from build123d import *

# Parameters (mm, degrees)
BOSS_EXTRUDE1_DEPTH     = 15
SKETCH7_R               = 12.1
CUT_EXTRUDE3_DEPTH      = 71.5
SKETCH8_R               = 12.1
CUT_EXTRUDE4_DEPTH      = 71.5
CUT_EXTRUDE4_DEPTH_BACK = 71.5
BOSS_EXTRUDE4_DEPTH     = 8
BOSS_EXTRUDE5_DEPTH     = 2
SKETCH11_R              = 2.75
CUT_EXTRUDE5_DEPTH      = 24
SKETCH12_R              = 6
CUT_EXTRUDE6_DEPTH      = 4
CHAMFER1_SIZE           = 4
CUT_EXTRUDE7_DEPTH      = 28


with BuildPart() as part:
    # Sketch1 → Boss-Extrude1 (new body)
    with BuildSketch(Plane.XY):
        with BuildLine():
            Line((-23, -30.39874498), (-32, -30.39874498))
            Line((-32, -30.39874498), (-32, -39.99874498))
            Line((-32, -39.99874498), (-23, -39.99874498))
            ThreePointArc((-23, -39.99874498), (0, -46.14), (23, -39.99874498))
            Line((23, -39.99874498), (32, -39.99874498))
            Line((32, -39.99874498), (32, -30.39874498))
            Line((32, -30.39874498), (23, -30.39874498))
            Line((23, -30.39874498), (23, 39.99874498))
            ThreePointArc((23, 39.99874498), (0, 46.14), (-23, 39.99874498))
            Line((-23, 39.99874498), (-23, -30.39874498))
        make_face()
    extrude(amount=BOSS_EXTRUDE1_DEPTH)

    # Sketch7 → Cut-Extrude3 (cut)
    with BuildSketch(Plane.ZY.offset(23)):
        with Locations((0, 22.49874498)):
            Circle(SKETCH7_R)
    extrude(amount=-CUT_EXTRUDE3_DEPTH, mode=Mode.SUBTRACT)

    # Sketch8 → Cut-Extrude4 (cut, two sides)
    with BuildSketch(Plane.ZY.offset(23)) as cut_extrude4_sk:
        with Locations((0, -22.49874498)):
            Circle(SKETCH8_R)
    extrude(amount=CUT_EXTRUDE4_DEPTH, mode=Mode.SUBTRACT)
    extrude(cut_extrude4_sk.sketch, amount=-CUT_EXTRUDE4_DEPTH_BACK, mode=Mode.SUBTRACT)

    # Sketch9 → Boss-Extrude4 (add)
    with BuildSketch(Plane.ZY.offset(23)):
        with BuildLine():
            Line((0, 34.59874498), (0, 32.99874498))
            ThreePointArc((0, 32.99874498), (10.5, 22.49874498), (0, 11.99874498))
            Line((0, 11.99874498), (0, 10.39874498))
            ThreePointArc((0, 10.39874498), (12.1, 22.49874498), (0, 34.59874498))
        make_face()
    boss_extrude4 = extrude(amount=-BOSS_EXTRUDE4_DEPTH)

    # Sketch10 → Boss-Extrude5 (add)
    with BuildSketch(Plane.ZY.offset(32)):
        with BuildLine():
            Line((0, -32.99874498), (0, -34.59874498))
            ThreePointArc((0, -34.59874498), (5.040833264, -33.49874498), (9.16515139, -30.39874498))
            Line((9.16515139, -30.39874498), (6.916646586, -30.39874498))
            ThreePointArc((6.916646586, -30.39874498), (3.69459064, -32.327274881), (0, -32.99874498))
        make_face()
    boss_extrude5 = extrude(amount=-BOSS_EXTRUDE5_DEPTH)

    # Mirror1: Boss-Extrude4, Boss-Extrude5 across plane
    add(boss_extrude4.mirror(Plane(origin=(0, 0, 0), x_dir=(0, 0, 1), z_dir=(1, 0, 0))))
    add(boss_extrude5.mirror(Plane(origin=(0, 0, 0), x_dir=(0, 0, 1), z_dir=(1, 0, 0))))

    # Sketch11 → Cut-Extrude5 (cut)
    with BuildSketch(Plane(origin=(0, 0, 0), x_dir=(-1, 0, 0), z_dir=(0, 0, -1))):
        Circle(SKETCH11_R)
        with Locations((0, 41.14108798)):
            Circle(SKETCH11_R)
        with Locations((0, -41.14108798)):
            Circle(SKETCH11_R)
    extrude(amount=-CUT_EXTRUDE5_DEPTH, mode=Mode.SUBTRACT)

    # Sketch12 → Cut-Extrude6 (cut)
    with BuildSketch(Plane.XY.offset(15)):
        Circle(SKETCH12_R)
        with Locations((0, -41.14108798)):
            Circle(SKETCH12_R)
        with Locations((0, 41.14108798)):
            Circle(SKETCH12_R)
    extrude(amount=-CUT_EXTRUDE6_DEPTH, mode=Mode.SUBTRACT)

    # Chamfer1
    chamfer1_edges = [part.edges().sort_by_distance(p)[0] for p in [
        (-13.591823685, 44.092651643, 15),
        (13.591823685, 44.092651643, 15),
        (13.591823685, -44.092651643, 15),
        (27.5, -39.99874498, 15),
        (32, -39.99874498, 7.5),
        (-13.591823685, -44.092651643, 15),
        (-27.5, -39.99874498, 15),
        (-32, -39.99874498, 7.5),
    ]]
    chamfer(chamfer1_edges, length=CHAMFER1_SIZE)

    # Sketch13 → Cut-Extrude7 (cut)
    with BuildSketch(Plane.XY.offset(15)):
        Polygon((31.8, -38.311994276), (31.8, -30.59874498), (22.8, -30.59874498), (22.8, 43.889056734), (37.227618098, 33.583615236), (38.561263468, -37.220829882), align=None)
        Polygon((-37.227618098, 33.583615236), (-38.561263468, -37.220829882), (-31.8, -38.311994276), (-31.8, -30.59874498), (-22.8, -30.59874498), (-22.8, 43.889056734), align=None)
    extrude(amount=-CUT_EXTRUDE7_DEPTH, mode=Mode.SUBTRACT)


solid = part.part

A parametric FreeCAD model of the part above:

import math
import FreeCAD as App
import Part
import Sketcher


def edges_at(feature, points):
    """Names of the edges that pass closest to the given points."""
    edges = feature.Shape.Edges
    near = lambda p: min(range(len(edges)), key=lambda i: edges[i].distToShape(Part.Vertex(*p))[0])
    return sorted({f"Edge{near(p) + 1}" for p in points})

doc = App.newDocument("Part")
body = doc.addObject("PartDesign::Body", "Body")

sketch1 = body.newObject("Sketcher::SketchObject", "Sketch")
sketch1.AttachmentSupport = (doc.getObject("XY_Plane"), [""])
sketch1.MapMode = "FlatFace"
sketch1.addGeometry([
    Part.LineSegment(App.Vector(-23, -30.398745, 0), App.Vector(-32, -30.398745, 0)),
    Part.LineSegment(App.Vector(-32, -30.398745, 0), App.Vector(-32, -39.998745, 0)),
    Part.LineSegment(App.Vector(-32, -39.998745, 0), App.Vector(-23, -39.998745, 0)),
    Part.ArcOfCircle(Part.Circle(App.Vector(0, 0, 0), App.Vector(0, 0, 1), 46.14), math.radians(-119.899679), math.radians(-60.100321)),
    Part.LineSegment(App.Vector(23, -39.998745, 0), App.Vector(32, -39.998745, 0)),
    Part.LineSegment(App.Vector(32, -39.998745, 0), App.Vector(32, -30.398745, 0)),
    Part.LineSegment(App.Vector(32, -30.398745, 0), App.Vector(23, -30.398745, 0)),
    Part.LineSegment(App.Vector(23, -30.398745, 0), App.Vector(23, 39.998745, 0)),
    Part.ArcOfCircle(Part.Circle(App.Vector(0, 0, 0), App.Vector(0, 0, 1), 46.14), math.radians(60.100321), math.radians(119.899679)),
    Part.LineSegment(App.Vector(-23, 39.998745, 0), App.Vector(-23, -30.398745, 0)),
], False)
sketch1.addConstraint([
    Sketcher.Constraint("Coincident", 0, 2, 1, 1),
    Sketcher.Constraint("Coincident", 1, 2, 2, 1),
    Sketcher.Constraint("Coincident", 2, 2, 3, 1),
    Sketcher.Constraint("Coincident", 3, 2, 4, 1),
    Sketcher.Constraint("Coincident", 4, 2, 5, 1),
    Sketcher.Constraint("Coincident", 5, 2, 6, 1),
    Sketcher.Constraint("Coincident", 6, 2, 7, 1),
    Sketcher.Constraint("Coincident", 7, 2, 8, 1),
    Sketcher.Constraint("Coincident", 8, 2, 9, 1),
    Sketcher.Constraint("Coincident", 9, 2, 0, 1),
    Sketcher.Constraint("Horizontal", 0),
    Sketcher.Constraint("Vertical", 1),
    Sketcher.Constraint("Horizontal", 2),
    Sketcher.Constraint("Horizontal", 4),
    Sketcher.Constraint("Vertical", 5),
    Sketcher.Constraint("Horizontal", 6),
    Sketcher.Constraint("Vertical", 7),
    Sketcher.Constraint("Vertical", 9),
    Sketcher.Constraint("Coincident", 3, 3, -1, 1),
    Sketcher.Constraint("Coincident", 8, 3, -1, 1),
    Sketcher.Constraint("Equal", 3, 8),
    Sketcher.Constraint("Symmetric", 1, 2, 4, 2, -2),
    Sketcher.Constraint("Symmetric", 6, 2, 9, 2, -2),
    Sketcher.Constraint("Vertical", 3, 2, 6, 2),
    Sketcher.Constraint("DistanceX", 0, 2, 0, 1, 9.0),
    Sketcher.Constraint("Radius", 3, 46.14),
    Sketcher.Constraint("DistanceY", 1, 2, 1, 1, 9.6),
    Sketcher.Constraint("DistanceX", 0, 2, -1, 1, 32.0),
])
pad1 = body.newObject("PartDesign::Pad", "Pad")
pad1.Profile = sketch1
pad1.Length = 15

sketch2 = body.newObject("Sketcher::SketchObject", "Sketch001")
sketch2.AttachmentSupport = (doc.getObject("YZ_Plane"), [""])
sketch2.MapMode = "FlatFace"
sketch2.AttachmentOffset = App.Placement(App.Vector(0, 0, -23), App.Rotation())
sketch2.addGeometry(Part.Circle(App.Vector(22.498745, 0, 0), App.Vector(0, 0, 1), 12.1), False)
sketch2.addConstraint([
    Sketcher.Constraint("PointOnObject", 0, 3, -1),
    Sketcher.Constraint("Diameter", 0, 24.2),
    Sketcher.Constraint("DistanceX", -1, 1, 0, 3, 22.498745),
])
pocket1 = body.newObject("PartDesign::Pocket", "Pocket")
pocket1.Profile = sketch2
pocket1.Length = 71.5
pocket1.Reversed = True

sketch3 = body.newObject("Sketcher::SketchObject", "Sketch002")
sketch3.AttachmentSupport = (doc.getObject("YZ_Plane"), [""])
sketch3.MapMode = "FlatFace"
sketch3.AttachmentOffset = App.Placement(App.Vector(0, 0, -23), App.Rotation())
sketch3.addGeometry(Part.Circle(App.Vector(-22.498745, 0, 0), App.Vector(0, 0, 1), 12.1), False)
sketch3.addConstraint([
    Sketcher.Constraint("PointOnObject", 0, 3, -1),
    Sketcher.Constraint("Diameter", 0, 24.2),
    Sketcher.Constraint("DistanceX", 0, 3, -1, 1, 22.498745),
])
pocket2 = body.newObject("PartDesign::Pocket", "Pocket001")
pocket2.Profile = sketch3
pocket2.Type = "ThroughAll"
pocket2.Midplane = True

sketch4 = body.newObject("Sketcher::SketchObject", "Sketch003")
sketch4.AttachmentSupport = (doc.getObject("YZ_Plane"), [""])
sketch4.MapMode = "FlatFace"
sketch4.AttachmentOffset = App.Placement(App.Vector(0, 0, -23), App.Rotation())
sketch4.addGeometry([
    Part.LineSegment(App.Vector(34.598745, 0, 0), App.Vector(32.998745, 0, 0)),
    Part.ArcOfCircle(Part.Circle(App.Vector(22.498745, 0, 0), App.Vector(0, 0, 1), 10.5), math.radians(0), math.radians(180)),
    Part.LineSegment(App.Vector(11.998745, 0, 0), App.Vector(10.398745, 0, 0)),
    Part.ArcOfCircle(Part.Circle(App.Vector(22.498745, 0, 0), App.Vector(0, 0, 1), 12.1), math.radians(0), math.radians(180)),
], False)
sketch4.addConstraint([
    Sketcher.Constraint("Coincident", 0, 2, 1, 1),
    Sketcher.Constraint("Coincident", 1, 2, 2, 1),
    Sketcher.Constraint("Coincident", 2, 2, 3, 2),
    Sketcher.Constraint("Coincident", 3, 1, 0, 1),
    Sketcher.Constraint("Horizontal", 0),
    Sketcher.Constraint("Horizontal", 2),
    Sketcher.Constraint("Coincident", 3, 3, 1, 3),
    Sketcher.Constraint("PointOnObject", 1, 3, -1),
    Sketcher.Constraint("PointOnObject", 0, 2, -1),
    Sketcher.Constraint("PointOnObject", 1, 2, -1),
    Sketcher.Constraint("Radius", 1, 10.5),
    Sketcher.Constraint("Radius", 3, 12.1),
    Sketcher.Constraint("DistanceX", -1, 1, 1, 3, 22.498745),
])
pad2 = body.newObject("PartDesign::Pad", "Pad001")
pad2.Profile = sketch4
pad2.Length = 8

sketch5 = body.newObject("Sketcher::SketchObject", "Sketch004")
sketch5.AttachmentSupport = (doc.getObject("YZ_Plane"), [""])
sketch5.MapMode = "FlatFace"
sketch5.AttachmentOffset = App.Placement(App.Vector(0, 0, -32), App.Rotation())
sketch5.addGeometry([
    Part.LineSegment(App.Vector(-32.998745, 0, 0), App.Vector(-34.598745, 0, 0)),
    Part.ArcOfCircle(Part.Circle(App.Vector(-22.498745, 0, 0), App.Vector(0, 0, 1), 12.1), math.radians(130.760045), math.radians(180)),
    Part.LineSegment(App.Vector(-30.398745, 9.165151, 0), App.Vector(-30.398745, 6.916647, 0)),
    Part.ArcOfCircle(Part.Circle(App.Vector(-22.498745, 0, 0), App.Vector(0, 0, 1), 10.5), math.radians(138.797046), math.radians(180)),
], False)
sketch5.addConstraint([
    Sketcher.Constraint("Coincident", 0, 2, 1, 2),
    Sketcher.Constraint("Coincident", 1, 1, 2, 1),
    Sketcher.Constraint("Coincident", 2, 2, 3, 1),
    Sketcher.Constraint("Coincident", 3, 2, 0, 1),
    Sketcher.Constraint("Horizontal", 0),
    Sketcher.Constraint("Vertical", 2),
    Sketcher.Constraint("Coincident", 3, 3, 1, 3),
    Sketcher.Constraint("PointOnObject", 1, 3, -1),
    Sketcher.Constraint("PointOnObject", 0, 2, -1),
    Sketcher.Constraint("Radius", 1, 12.1),
    Sketcher.Constraint("Radius", 3, 10.5),
    Sketcher.Constraint("DistanceX", 0, 2, 1, 1, 4.2),
    Sketcher.Constraint("DistanceX", 1, 3, -1, 1, 22.498745),
])
pad3 = body.newObject("PartDesign::Pad", "Pad002")
pad3.Profile = sketch5
pad3.Length = 2
doc.recompute()

mirrored = body.newObject("PartDesign::Mirrored", "Mirrored")
mirrored.Originals = [pad2, pad3]
mirrored.MirrorPlane = (doc.getObject("YZ_Plane"), [""])
body.Tip = mirrored

sketch6 = body.newObject("Sketcher::SketchObject", "Sketch005")
sketch6.AttachmentSupport = (doc.getObject("XY_Plane"), [""])
sketch6.MapMode = "FlatFace"
sketch6.addGeometry([
    Part.Circle(App.Vector(0, 0, 0), App.Vector(0, 0, 1), 2.75),
    Part.Circle(App.Vector(0, 41.141088, 0), App.Vector(0, 0, 1), 2.75),
    Part.Circle(App.Vector(0, -41.141088, 0), App.Vector(0, 0, 1), 2.75),
], False)
sketch6.addConstraint([
    Sketcher.Constraint("Coincident", 0, 3, -1, 1),
    Sketcher.Constraint("Equal", 0, 1),
    Sketcher.Constraint("Equal", 1, 2),
    Sketcher.Constraint("Symmetric", 1, 3, 2, 3, -1, 1),
    Sketcher.Constraint("PointOnObject", 1, 3, -2),
    Sketcher.Constraint("Diameter", 0, 5.5),
    Sketcher.Constraint("DistanceY", -1, 1, 1, 3, 41.141088),
])
pocket3 = body.newObject("PartDesign::Pocket", "Pocket002")
pocket3.Profile = sketch6
pocket3.Length = 24
pocket3.Reversed = True

sketch7 = body.newObject("Sketcher::SketchObject", "Sketch006")
sketch7.AttachmentSupport = (doc.getObject("XY_Plane"), [""])
sketch7.MapMode = "FlatFace"
sketch7.AttachmentOffset = App.Placement(App.Vector(0, 0, 15), App.Rotation())
sketch7.addGeometry([
    Part.Circle(App.Vector(0, 0, 0), App.Vector(0, 0, 1), 6),
    Part.Circle(App.Vector(0, -41.141088, 0), App.Vector(0, 0, 1), 6),
    Part.Circle(App.Vector(0, 41.141088, 0), App.Vector(0, 0, 1), 6),
], False)
sketch7.addConstraint([
    Sketcher.Constraint("Coincident", 0, 3, -1, 1),
    Sketcher.Constraint("Equal", 0, 1),
    Sketcher.Constraint("Equal", 1, 2),
    Sketcher.Constraint("Symmetric", 1, 3, 2, 3, -1, 1),
    Sketcher.Constraint("PointOnObject", 1, 3, -2),
    Sketcher.Constraint("Diameter", 0, 12.0),
    Sketcher.Constraint("DistanceY", 1, 3, -1, 1, 41.141088),
])
pocket4 = body.newObject("PartDesign::Pocket", "Pocket003")
pocket4.Profile = sketch7
pocket4.Length = 4
doc.recompute()

chamfer = body.newObject("PartDesign::Chamfer", "Chamfer")
chamfer.Base = (pocket4, edges_at(pocket4, [
    (-13.592, 44.093, 15),
    (13.592, 44.093, 15),
    (13.592, -44.093, 15),
    (27.5, -39.999, 15),
    (32, -39.999, 7.5),
    (-13.592, -44.093, 15),
    (-27.5, -39.999, 15),
    (-32, -39.999, 7.5),
]))
chamfer.Size = 4

sketch8 = body.newObject("Sketcher::SketchObject", "Sketch007")
sketch8.AttachmentSupport = (doc.getObject("XY_Plane"), [""])
sketch8.MapMode = "FlatFace"
sketch8.AttachmentOffset = App.Placement(App.Vector(0, 0, 15), App.Rotation())
sketch8.addGeometry([
    Part.LineSegment(App.Vector(31.8, -30.598745, 0), App.Vector(31.8, -38.311994, 0)),
    Part.LineSegment(App.Vector(31.8, -38.311994, 0), App.Vector(38.561263, -37.22083, 0)),
    Part.LineSegment(App.Vector(38.561263, -37.22083, 0), App.Vector(37.227618, 33.583615, 0)),
    Part.LineSegment(App.Vector(37.227618, 33.583615, 0), App.Vector(22.8, 43.889057, 0)),
    Part.LineSegment(App.Vector(22.8, 43.889057, 0), App.Vector(22.8, -30.598745, 0)),
    Part.LineSegment(App.Vector(22.8, -30.598745, 0), App.Vector(31.8, -30.598745, 0)),
    Part.LineSegment(App.Vector(-37.227618, 33.583615, 0), App.Vector(-38.561263, -37.22083, 0)),
    Part.LineSegment(App.Vector(-38.561263, -37.22083, 0), App.Vector(-31.8, -38.311994, 0)),
    Part.LineSegment(App.Vector(-31.8, -38.311994, 0), App.Vector(-31.8, -30.598745, 0)),
    Part.LineSegment(App.Vector(-31.8, -30.598745, 0), App.Vector(-22.8, -30.598745, 0)),
    Part.LineSegment(App.Vector(-22.8, -30.598745, 0), App.Vector(-22.8, 43.889057, 0)),
    Part.LineSegment(App.Vector(-22.8, 43.889057, 0), App.Vector(-37.227618, 33.583615, 0)),
], False)
sketch8.addConstraint([
    Sketcher.Constraint("Coincident", 0, 2, 1, 1),
    Sketcher.Constraint("Coincident", 1, 2, 2, 1),
    Sketcher.Constraint("Coincident", 2, 2, 3, 1),
    Sketcher.Constraint("Coincident", 3, 2, 4, 1),
    Sketcher.Constraint("Coincident", 4, 2, 5, 1),
    Sketcher.Constraint("Coincident", 5, 2, 0, 1),
    Sketcher.Constraint("Coincident", 6, 2, 7, 1),
    Sketcher.Constraint("Coincident", 7, 2, 8, 1),
    Sketcher.Constraint("Coincident", 8, 2, 9, 1),
    Sketcher.Constraint("Coincident", 9, 2, 10, 1),
    Sketcher.Constraint("Coincident", 10, 2, 11, 1),
    Sketcher.Constraint("Coincident", 11, 2, 6, 1),
    Sketcher.Constraint("Vertical", 0),
    Sketcher.Constraint("Vertical", 4),
    Sketcher.Constraint("Horizontal", 5),
    Sketcher.Constraint("Vertical", 8),
    Sketcher.Constraint("Horizontal", 9),
    Sketcher.Constraint("Vertical", 10),
    Sketcher.Constraint("Symmetric", 1, 2, 6, 2, -2),
    Sketcher.Constraint("Symmetric", 0, 2, 7, 2, -2),
    Sketcher.Constraint("Symmetric", 4, 2, 9, 2, -2),
    Sketcher.Constraint("Symmetric", 2, 2, 11, 2, -2),
    Sketcher.Constraint("Horizontal", 3, 2, 10, 2),
    Sketcher.Constraint("DistanceX", 5, 1, 5, 2, 9.0),
    Sketcher.Constraint("DistanceX", -1, 1, 0, 2, 31.8),
    Sketcher.Constraint("DistanceY", 4, 2, 4, 1, 74.487802),
    Sketcher.Constraint("DistanceY", 0, 2, 0, 1, 7.713249),
    Sketcher.Constraint("Distance", 3, 17.730152),
    Sketcher.Constraint("DistanceY", 1, 2, -1, 1, 37.22083),
    Sketcher.Constraint("DistanceX", -1, 1, 2, 2, 37.227618),
    Sketcher.Constraint("Distance", 1, 6.848746),
    Sketcher.Constraint("Distance", 2, 70.817004),
])
pocket5 = body.newObject("PartDesign::Pocket", "Pocket004")
pocket5.Profile = sketch8
pocket5.Length = 28

doc.recompute()
